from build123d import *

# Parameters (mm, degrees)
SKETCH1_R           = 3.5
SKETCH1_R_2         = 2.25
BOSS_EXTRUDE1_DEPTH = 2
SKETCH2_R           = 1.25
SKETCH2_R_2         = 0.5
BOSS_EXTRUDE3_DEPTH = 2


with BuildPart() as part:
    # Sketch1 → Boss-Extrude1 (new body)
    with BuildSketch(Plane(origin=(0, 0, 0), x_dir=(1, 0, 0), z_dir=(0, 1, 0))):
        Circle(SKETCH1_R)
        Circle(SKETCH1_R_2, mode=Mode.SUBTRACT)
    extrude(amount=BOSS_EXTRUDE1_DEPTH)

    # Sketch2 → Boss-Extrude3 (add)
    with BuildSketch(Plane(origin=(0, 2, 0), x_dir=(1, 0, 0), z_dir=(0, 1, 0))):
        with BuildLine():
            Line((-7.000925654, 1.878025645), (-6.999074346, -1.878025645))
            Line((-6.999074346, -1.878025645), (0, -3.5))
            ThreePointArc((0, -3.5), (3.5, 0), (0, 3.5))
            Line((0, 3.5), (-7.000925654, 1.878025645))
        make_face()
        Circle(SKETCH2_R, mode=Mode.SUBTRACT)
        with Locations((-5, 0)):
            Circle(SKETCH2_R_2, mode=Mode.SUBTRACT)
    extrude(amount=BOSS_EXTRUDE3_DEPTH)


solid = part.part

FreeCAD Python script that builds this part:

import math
import FreeCAD as App
import Part
import Sketcher
from FreeCAD import Vector

doc = App.newDocument("Part")
body = doc.addObject("PartDesign::Body", "Body")

# Sketch on XZ plane
sketch1 = body.newObject("Sketcher::SketchObject", "Sketch")
sketch1.AttachmentSupport = (doc.getObject("XZ_Plane"), [""])
sketch1.MapMode = "FlatFace"
sketch1.addGeometry(Part.Circle(Vector(0, 0, 0), Vector(0, 0, 1), 3.5), False)
sketch1.addGeometry(Part.Circle(Vector(0, 0, 0), Vector(0, 0, 1), 2.2), False)
sketch1.addConstraint(Sketcher.Constraint("Coincident", 0, 3, -1, 1))
sketch1.addConstraint(Sketcher.Constraint("Coincident", 1, 3, -1, 1))
sketch1.addConstraint(Sketcher.Constraint("Diameter", 0, 7.0))
sketch1.addConstraint(Sketcher.Constraint("Diameter", 1, 4.5))
pad1 = body.newObject("PartDesign::Pad", "Pad")
pad1.Profile = sketch1
pad1.Length = 2
pad1.Reversed = True

# Sketch on XZ plane
sketch2 = body.newObject("Sketcher::SketchObject", "Sketch001")
sketch2.AttachmentSupport = (doc.getObject("XZ_Plane"), [""])
sketch2.MapMode = "FlatFace"
sketch2.AttachmentOffset = App.Placement(Vector(0, 0, -2), App.Rotation())
sketch2.addGeometry(Part.LineSegment(Vector(-7, -1.9, 0), Vector(-7, 1.9, 0)), False)
sketch2.addGeometry(Part.LineSegment(Vector(-7, 1.9, 0), Vector(0, 3.5, 0)), False)
sketch2.addGeometry(Part.ArcOfCircle(Part.Circle(Vector(0, 0, 0), Vector(0, 0, 1), 3.5), math.radians(-90), math.radians(90)), False)
sketch2.addGeometry(Part.LineSegment(Vector(0, -3.5, 0), Vector(-7, -1.9, 0)), False)
sketch2.addGeometry(Part.Circle(Vector(-5, 0, 0), Vector(0, 0, 1), 0.5), False)
sketch2.addGeometry(Part.Circle(Vector(0, 0, 0), Vector(0, 0, 1), 1.2), False)
sketch2.addConstraint(Sketcher.Constraint("Coincident", 0, 2, 1, 1))
sketch2.addConstraint(Sketcher.Constraint("Coincident", 1, 2, 2, 2))
sketch2.addConstraint(Sketcher.Constraint("Coincident", 2, 1, 3, 1))
sketch2.addConstraint(Sketcher.Constraint("Coincident", 3, 2, 0, 1))
sketch2.addConstraint(Sketcher.Constraint("Coincident", 2, 3, -1, 1))
sketch2.addConstraint(Sketcher.Constraint("Coincident", 5, 3, -1, 1))
sketch2.addConstraint(Sketcher.Constraint("PointOnObject", 4, 3, -1))
sketch2.addConstraint(Sketcher.Constraint("PointOnObject", 1, 2, -2))
sketch2.addConstraint(Sketcher.Constraint("PointOnObject", 2, 1, -2))
sketch2.addConstraint(Sketcher.Constraint("Diameter", 4, 1.0))
sketch2.addConstraint(Sketcher.Constraint("Diameter", 5, 2.5))
sketch2.addConstraint(Sketcher.Constraint("Radius", 2, 3.5))
sketch2.addConstraint(Sketcher.Constraint("DistanceX", 4, 3, -1, 1, 5.0))
sketch2.addConstraint(Sketcher.Constraint("Distance", 0, 3.756052))
sketch2.addConstraint(Sketcher.Constraint("Distance", 3, 7.186359))
sketch2.addConstraint(Sketcher.Constraint("DistanceX", 3, 2, 0, 2, 0.001851))
sketch2.addConstraint(Sketcher.Constraint("Distance", 1, 7.184556))
pad2 = body.newObject("PartDesign::Pad", "Pad001")
pad2.Profile = sketch2
pad2.Length = 2
pad2.Reversed = True

doc.recompute()
